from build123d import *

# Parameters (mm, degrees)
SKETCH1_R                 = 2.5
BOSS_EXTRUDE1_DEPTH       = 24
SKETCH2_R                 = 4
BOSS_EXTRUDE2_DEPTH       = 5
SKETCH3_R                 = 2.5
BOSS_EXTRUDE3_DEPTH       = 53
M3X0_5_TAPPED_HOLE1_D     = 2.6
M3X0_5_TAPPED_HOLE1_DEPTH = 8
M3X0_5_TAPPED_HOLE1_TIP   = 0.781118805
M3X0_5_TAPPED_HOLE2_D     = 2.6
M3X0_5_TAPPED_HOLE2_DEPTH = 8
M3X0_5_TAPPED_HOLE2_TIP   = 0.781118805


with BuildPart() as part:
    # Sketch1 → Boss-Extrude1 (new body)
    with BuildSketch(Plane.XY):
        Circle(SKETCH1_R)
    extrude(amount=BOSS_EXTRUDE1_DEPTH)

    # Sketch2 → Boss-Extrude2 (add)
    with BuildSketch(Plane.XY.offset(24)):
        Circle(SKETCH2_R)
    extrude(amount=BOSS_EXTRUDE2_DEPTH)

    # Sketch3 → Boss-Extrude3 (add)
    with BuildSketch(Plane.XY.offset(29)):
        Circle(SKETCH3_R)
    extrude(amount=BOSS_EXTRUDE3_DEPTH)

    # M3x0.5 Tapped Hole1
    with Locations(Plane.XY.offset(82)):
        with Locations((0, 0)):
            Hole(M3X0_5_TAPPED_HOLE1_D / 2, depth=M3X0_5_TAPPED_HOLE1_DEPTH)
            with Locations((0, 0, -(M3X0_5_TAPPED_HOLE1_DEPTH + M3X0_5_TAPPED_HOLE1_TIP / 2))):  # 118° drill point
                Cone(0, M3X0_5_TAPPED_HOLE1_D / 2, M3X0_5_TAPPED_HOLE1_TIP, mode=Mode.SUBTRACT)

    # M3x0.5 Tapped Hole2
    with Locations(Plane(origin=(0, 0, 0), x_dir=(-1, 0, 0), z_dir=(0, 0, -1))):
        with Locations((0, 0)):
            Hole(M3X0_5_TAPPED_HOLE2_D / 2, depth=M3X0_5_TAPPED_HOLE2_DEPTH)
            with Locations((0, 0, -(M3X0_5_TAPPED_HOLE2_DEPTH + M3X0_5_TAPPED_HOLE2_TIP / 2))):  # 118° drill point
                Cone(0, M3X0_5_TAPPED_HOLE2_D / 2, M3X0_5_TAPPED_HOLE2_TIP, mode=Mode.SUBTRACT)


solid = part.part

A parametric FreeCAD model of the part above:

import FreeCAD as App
import Part
import Sketcher

V = App.Vector

doc = App.newDocument("Part")
body = doc.addObject("PartDesign::Body", "Body")

sketch1 = doc.addObject("Sketcher::SketchObject", "Sketch")
body.addObject(sketch1)
sketch1.AttachmentSupport = (doc.XY_Plane, [""])
sketch1.MapMode = "FlatFace"
sketch1.addGeometry(Part.Circle(V(0, 0, 0), V(0, 0, 1), 2.5), False)
sketch1.addConstraint([
    Sketcher.Constraint("Coincident", 0, 3, -1, 1),
    Sketcher.Constraint("Diameter", 0, 5.0),
])
pad1 = doc.addObject("PartDesign::Pad", "Pad")
body.addObject(pad1)
pad1.Profile = sketch1
pad1.Length = 24

sketch2 = doc.addObject("Sketcher::SketchObject", "Sketch001")
body.addObject(sketch2)
sketch2.AttachmentSupport = (doc.XY_Plane, [""])
sketch2.MapMode = "FlatFace"
sketch2.AttachmentOffset = App.Placement(V(0, 0, 24), App.Rotation())
sketch2.addGeometry(Part.Circle(V(0, 0, 0), V(0, 0, 1), 4), False)
sketch2.addConstraint([
    Sketcher.Constraint("Coincident", 0, 3, -1, 1),
    Sketcher.Constraint("Diameter", 0, 8.0),
])
pad2 = doc.addObject("PartDesign::Pad", "Pad001")
body.addObject(pad2)
pad2.Profile = sketch2
pad2.Length = 5

sketch3 = doc.addObject("Sketcher::SketchObject", "Sketch002")
body.addObject(sketch3)
sketch3.AttachmentSupport = (doc.XY_Plane, [""])
sketch3.MapMode = "FlatFace"
sketch3.AttachmentOffset = App.Placement(V(0, 0, 29), App.Rotation())
sketch3.addGeometry(Part.Circle(V(0, 0, 0), V(0, 0, 1), 2.5), False)
sketch3.addConstraint([
    Sketcher.Constraint("Coincident", 0, 3, -1, 1),
    Sketcher.Constraint("Diameter", 0, 5.0),
])
pad3 = doc.addObject("PartDesign::Pad", "Pad002")
body.addObject(pad3)
pad3.Profile = sketch3
pad3.Length = 53

sketch4 = doc.addObject("Sketcher::SketchObject", "Sketch003")
body.addObject(sketch4)
sketch4.AttachmentSupport = (doc.XY_Plane, [""])
sketch4.MapMode = "FlatFace"
sketch4.AttachmentOffset = App.Placement(V(0, 0, 82), App.Rotation())
sketch4.addGeometry(Part.Circle(V(0, 0, 0), V(0, 0, 1), 1.3), False)
sketch4.addConstraint([
    Sketcher.Constraint("Coincident", 0, 3, -1, 1),
    Sketcher.Constraint("Diameter", 0, 2.6),
])
doc.recompute()
hole = doc.addObject("PartDesign::Hole", "Hole")
body.addObject(hole)
hole.Profile = sketch4
hole.ThreadType = "None"
hole.Diameter = 2.6
hole.DepthType = "Dimension"
hole.Depth = 8
hole.DrillPoint = "Angled"
hole.DrillPointAngle = 118

sketch5 = doc.addObject("Sketcher::SketchObject", "Sketch004")
body.addObject(sketch5)
sketch5.AttachmentSupport = (doc.XY_Plane, [""])
sketch5.MapMode = "FlatFace"
sketch5.addGeometry(Part.Circle(V(0, 0, 0), V(0, 0, 1), 1.3), False)
sketch5.addConstraint([
    Sketcher.Constraint("Coincident", 0, 3, -1, 1),
    Sketcher.Constraint("Diameter", 0, 2.6),
])
doc.recompute()
hole2 = doc.addObject("PartDesign::Hole", "Hole001")
body.addObject(hole2)
hole2.Profile = sketch5
hole2.ThreadType = "None"
hole2.Diameter = 2.6
hole2.DepthType = "Dimension"
hole2.Depth = 8
hole2.DrillPoint = "Angled"
hole2.DrillPointAngle = 118
hole2.Reversed = True

doc.recompute()
